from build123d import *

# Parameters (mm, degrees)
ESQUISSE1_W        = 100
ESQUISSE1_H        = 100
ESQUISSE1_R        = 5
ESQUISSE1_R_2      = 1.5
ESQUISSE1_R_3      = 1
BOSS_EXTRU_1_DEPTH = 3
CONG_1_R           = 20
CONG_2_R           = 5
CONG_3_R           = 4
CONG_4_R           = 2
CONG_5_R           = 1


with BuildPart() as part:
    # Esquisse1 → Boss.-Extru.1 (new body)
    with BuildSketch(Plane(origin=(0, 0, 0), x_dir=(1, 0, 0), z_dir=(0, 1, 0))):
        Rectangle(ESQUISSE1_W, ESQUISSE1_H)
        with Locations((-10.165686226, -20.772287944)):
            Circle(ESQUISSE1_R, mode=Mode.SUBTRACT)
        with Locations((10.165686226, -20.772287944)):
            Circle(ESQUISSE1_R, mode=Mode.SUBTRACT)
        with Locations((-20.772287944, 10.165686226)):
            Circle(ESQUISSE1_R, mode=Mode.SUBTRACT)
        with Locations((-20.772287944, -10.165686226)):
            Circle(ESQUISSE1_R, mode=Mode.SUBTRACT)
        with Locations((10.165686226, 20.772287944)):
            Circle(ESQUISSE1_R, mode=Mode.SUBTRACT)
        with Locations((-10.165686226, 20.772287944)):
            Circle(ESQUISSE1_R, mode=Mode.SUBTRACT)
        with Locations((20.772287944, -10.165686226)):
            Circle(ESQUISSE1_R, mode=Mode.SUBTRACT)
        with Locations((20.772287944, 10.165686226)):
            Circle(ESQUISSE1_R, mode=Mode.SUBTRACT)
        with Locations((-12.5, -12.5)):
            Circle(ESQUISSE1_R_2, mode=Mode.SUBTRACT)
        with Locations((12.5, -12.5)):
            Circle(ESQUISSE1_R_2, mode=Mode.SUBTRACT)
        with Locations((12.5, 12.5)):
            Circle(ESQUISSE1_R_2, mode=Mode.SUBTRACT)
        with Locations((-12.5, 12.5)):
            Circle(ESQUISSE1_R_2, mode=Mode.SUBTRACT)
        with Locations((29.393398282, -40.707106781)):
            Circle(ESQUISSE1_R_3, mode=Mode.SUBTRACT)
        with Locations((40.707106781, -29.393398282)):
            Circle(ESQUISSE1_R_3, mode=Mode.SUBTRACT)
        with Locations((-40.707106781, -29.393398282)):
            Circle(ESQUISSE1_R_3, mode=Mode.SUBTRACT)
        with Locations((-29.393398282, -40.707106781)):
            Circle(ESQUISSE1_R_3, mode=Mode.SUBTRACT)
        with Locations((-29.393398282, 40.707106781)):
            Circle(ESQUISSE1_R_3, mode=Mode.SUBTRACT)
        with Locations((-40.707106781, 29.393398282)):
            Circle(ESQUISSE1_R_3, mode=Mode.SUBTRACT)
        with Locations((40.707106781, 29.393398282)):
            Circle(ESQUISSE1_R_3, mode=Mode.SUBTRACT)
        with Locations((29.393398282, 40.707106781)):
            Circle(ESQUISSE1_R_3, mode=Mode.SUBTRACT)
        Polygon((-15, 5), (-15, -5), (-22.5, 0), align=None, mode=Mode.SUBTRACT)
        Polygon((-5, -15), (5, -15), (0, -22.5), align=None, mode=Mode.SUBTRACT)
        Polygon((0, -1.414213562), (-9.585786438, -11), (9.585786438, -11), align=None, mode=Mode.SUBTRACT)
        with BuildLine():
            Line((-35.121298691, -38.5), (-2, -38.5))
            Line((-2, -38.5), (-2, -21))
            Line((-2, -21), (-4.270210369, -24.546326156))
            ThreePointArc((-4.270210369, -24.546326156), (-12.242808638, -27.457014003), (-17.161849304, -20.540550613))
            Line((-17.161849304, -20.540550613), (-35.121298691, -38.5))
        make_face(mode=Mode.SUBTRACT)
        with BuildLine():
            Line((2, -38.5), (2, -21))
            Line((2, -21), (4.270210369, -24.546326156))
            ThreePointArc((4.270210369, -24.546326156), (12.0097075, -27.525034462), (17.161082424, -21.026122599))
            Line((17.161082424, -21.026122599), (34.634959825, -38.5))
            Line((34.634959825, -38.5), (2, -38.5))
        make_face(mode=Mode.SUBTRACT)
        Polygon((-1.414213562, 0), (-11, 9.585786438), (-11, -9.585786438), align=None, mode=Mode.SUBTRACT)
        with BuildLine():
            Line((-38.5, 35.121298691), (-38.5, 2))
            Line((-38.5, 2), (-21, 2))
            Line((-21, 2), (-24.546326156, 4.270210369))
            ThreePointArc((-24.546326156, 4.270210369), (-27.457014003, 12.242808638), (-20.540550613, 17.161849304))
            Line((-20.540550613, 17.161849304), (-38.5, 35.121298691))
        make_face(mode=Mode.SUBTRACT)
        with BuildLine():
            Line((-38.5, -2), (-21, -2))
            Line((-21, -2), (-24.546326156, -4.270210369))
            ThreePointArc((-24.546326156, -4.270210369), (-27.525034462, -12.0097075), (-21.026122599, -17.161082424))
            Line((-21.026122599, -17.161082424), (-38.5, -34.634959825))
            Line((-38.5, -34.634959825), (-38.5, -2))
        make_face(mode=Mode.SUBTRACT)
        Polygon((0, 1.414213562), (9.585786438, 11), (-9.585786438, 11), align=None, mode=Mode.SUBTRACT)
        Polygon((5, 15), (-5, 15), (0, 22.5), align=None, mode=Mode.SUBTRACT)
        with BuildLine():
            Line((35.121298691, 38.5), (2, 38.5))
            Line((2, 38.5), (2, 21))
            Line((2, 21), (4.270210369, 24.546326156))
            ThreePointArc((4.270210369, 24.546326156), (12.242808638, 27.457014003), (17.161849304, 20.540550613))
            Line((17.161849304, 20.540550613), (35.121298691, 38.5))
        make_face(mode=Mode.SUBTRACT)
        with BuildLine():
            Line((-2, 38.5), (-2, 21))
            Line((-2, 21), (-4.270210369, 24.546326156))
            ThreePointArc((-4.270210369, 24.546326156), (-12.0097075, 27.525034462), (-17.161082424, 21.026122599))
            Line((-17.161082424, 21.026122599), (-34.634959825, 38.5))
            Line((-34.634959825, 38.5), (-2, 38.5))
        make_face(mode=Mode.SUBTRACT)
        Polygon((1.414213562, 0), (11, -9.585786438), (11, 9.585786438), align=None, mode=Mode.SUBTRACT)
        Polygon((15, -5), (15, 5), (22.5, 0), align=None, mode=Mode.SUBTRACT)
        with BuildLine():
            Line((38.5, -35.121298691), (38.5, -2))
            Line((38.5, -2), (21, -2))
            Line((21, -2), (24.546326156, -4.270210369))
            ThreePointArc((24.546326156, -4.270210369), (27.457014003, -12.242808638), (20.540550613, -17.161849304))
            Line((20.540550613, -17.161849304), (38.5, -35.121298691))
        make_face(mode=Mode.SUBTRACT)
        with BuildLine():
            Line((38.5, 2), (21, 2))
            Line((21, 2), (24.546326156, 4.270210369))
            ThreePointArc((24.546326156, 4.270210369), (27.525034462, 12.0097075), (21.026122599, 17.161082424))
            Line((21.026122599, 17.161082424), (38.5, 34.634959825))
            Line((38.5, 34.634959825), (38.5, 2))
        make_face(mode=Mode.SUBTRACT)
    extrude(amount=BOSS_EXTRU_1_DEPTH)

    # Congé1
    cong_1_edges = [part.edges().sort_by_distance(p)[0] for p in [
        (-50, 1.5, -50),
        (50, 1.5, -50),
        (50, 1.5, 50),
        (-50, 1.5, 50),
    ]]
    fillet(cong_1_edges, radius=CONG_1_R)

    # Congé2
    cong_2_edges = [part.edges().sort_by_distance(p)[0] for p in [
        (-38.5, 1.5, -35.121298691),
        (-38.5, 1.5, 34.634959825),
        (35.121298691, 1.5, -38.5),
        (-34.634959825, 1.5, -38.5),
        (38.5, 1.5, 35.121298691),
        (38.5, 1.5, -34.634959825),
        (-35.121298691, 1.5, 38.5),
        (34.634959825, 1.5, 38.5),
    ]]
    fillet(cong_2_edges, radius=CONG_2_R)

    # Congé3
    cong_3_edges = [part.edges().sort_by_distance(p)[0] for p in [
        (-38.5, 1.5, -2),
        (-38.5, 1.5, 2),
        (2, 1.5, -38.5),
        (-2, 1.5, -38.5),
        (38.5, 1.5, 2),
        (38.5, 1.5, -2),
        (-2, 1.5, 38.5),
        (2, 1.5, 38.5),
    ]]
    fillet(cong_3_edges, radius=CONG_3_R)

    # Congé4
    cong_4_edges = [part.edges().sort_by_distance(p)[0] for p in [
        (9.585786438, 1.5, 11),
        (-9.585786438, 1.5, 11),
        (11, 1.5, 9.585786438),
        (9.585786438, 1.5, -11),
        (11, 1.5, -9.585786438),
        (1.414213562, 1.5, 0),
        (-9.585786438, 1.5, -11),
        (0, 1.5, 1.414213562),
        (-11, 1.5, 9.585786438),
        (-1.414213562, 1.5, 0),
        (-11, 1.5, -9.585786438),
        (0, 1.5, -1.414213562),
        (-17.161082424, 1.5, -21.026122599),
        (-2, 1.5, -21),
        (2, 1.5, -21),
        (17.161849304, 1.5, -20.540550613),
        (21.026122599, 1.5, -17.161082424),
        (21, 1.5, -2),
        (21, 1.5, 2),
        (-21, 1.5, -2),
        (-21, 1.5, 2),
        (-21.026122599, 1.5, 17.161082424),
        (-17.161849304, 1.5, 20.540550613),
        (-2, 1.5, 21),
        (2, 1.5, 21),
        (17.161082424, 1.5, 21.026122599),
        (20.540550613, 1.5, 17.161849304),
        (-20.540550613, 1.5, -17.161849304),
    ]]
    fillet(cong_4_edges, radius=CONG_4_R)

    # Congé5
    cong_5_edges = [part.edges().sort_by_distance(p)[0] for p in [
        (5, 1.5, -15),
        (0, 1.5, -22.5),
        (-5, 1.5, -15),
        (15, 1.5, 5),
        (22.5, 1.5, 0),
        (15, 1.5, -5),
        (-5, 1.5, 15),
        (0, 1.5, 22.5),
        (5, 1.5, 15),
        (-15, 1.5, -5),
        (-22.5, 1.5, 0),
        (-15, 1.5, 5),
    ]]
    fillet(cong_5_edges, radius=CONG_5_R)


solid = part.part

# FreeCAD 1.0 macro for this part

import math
import FreeCAD as App
import Part
import Sketcher
Q = App.Units.Quantity


def edges_at(feature, points):
    """Names of the edges that pass closest to the given points."""
    edges = feature.Shape.Edges
    near = lambda p: min(range(len(edges)), key=lambda i: edges[i].distToShape(Part.Vertex(*p))[0])
    return sorted({f"Edge{near(p) + 1}" for p in points})

doc = App.newDocument("Part")
body = doc.addObject("PartDesign::Body", "Body")

# Sketch on XZ plane
sketch1 = body.newObject("Sketcher::SketchObject", "Sketch")
sketch1.AttachmentSupport = (doc.getObject("XZ_Plane"), [""])
sketch1.MapMode = "FlatFace"
sketch1.addGeometry([
    Part.LineSegment(App.Vector(-50, -50, 0), App.Vector(-50, 50, 0)),  # 0
    Part.LineSegment(App.Vector(-50, 50, 0), App.Vector(50, 50, 0)),  # 1
    Part.LineSegment(App.Vector(50, 50, 0), App.Vector(50, -50, 0)),  # 2
    Part.LineSegment(App.Vector(50, -50, 0), App.Vector(-50, -50, 0)),  # 3
    Part.Circle(App.Vector(-29.4, 40.7, 0), App.Vector(0, 0, 1), 1),  # 4
    Part.Circle(App.Vector(-40.7, 29.4, 0), App.Vector(0, 0, 1), 1),  # 5
    Part.LineSegment(App.Vector(-2, 38.5, 0), App.Vector(-35.1, 38.5, 0)),  # 6
    Part.LineSegment(App.Vector(-35.1, 38.5, 0), App.Vector(-17.2, 20.5, 0)),  # 7
    Part.ArcOfCircle(Part.Circle(App.Vector(-10.2, 20.8, 0), App.Vector(0, 0, 1), 7), math.radians(33), math.radians(182)),  # 8
    Part.LineSegment(App.Vector(-4.3, 24.5, 0), App.Vector(-2, 21, 0)),  # 9
    Part.LineSegment(App.Vector(-2, 21, 0), App.Vector(-2, 38.5, 0)),  # 10
    Part.LineSegment(App.Vector(-38.5, 34.6, 0), App.Vector(-38.5, 2, 0)),  # 11
    Part.LineSegment(App.Vector(-38.5, 2, 0), App.Vector(-21, 2, 0)),  # 12
    Part.LineSegment(App.Vector(-21, 2, 0), App.Vector(-24.5, 4.3, 0)),  # 13
    Part.ArcOfCircle(Part.Circle(App.Vector(-20.8, 10.2, 0), App.Vector(0, 0, 1), 7), math.radians(92), math.radians(237)),  # 14
    Part.LineSegment(App.Vector(-21, 17.2, 0), App.Vector(-38.5, 34.6, 0)),  # 15
    Part.Circle(App.Vector(-12.5, 12.5, 0), App.Vector(0, 0, 1), 1.5),  # 16
    Part.Circle(App.Vector(-10.2, 20.8, 0), App.Vector(0, 0, 1), 5),  # 17
    Part.LineSegment(App.Vector(0, 22.5, 0), App.Vector(-5, 15, 0)),  # 18
    Part.LineSegment(App.Vector(-5, 15, 0), App.Vector(5, 15, 0)),  # 19
    Part.LineSegment(App.Vector(5, 15, 0), App.Vector(0, 22.5, 0)),  # 20
    Part.Circle(App.Vector(-20.8, 10.2, 0), App.Vector(0, 0, 1), 5),  # 21
    Part.LineSegment(App.Vector(-22.5, 0, 0), App.Vector(-15, -5, 0)),  # 22
    Part.LineSegment(App.Vector(-15, -5, 0), App.Vector(-15, 5, 0)),  # 23
    Part.LineSegment(App.Vector(-15, 5, 0), App.Vector(-22.5, 0, 0)),  # 24
    Part.LineSegment(App.Vector(-9.6, 11, 0), App.Vector(0, 1.4, 0)),  # 25
    Part.LineSegment(App.Vector(0, 1.4, 0), App.Vector(9.6, 11, 0)),  # 26
    Part.LineSegment(App.Vector(9.6, 11, 0), App.Vector(-9.6, 11, 0)),  # 27
    Part.LineSegment(App.Vector(-11, -9.6, 0), App.Vector(-1.4, 0, 0)),  # 28
    Part.LineSegment(App.Vector(-1.4, 0, 0), App.Vector(-11, 9.6, 0)),  # 29
    Part.LineSegment(App.Vector(-11, 9.6, 0), App.Vector(-11, -9.6, 0)),  # 30
    Part.LineSegment(App.Vector(34.6, 38.5, 0), App.Vector(2, 38.5, 0)),  # 31
    Part.LineSegment(App.Vector(2, 38.5, 0), App.Vector(2, 21, 0)),  # 32
    Part.LineSegment(App.Vector(2, 21, 0), App.Vector(4.3, 24.5, 0)),  # 33
    Part.ArcOfCircle(Part.Circle(App.Vector(10.2, 20.8, 0), App.Vector(0, 0, 1), 7), math.radians(2), math.radians(147)),  # 34
    Part.LineSegment(App.Vector(17.2, 21, 0), App.Vector(34.6, 38.5, 0)),  # 35
    Part.Circle(App.Vector(29.4, 40.7, 0), App.Vector(0, 0, 1), 1),  # 36
    Part.Circle(App.Vector(40.7, 29.4, 0), App.Vector(0, 0, 1), 1),  # 37
    Part.Circle(App.Vector(10.2, 20.8, 0), App.Vector(0, 0, 1), 5),  # 38
    Part.Circle(App.Vector(12.5, 12.5, 0), App.Vector(0, 0, 1), 1.5),  # 39
    Part.LineSegment(App.Vector(11, 9.6, 0), App.Vector(1.4, 0, 0)),  # 40
    Part.LineSegment(App.Vector(1.4, 0, 0), App.Vector(11, -9.6, 0)),  # 41
    Part.LineSegment(App.Vector(11, -9.6, 0), App.Vector(11, 9.6, 0)),  # 42
    Part.Circle(App.Vector(20.8, 10.2, 0), App.Vector(0, 0, 1), 5),  # 43
    Part.LineSegment(App.Vector(22.5, 0, 0), App.Vector(15, 5, 0)),  # 44
    Part.LineSegment(App.Vector(15, 5, 0), App.Vector(15, -5, 0)),  # 45
    Part.LineSegment(App.Vector(15, -5, 0), App.Vector(22.5, 0, 0)),  # 46
    Part.LineSegment(App.Vector(38.5, 2, 0), App.Vector(38.5, 35.1, 0)),  # 47
    Part.LineSegment(App.Vector(38.5, 35.1, 0), App.Vector(20.5, 17.2, 0)),  # 48
    Part.ArcOfCircle(Part.Circle(App.Vector(20.8, 10.2, 0), App.Vector(0, 0, 1), 7), math.radians(-57), math.radians(92)),  # 49
    Part.LineSegment(App.Vector(24.5, 4.3, 0), App.Vector(21, 2, 0)),  # 50
    Part.LineSegment(App.Vector(21, 2, 0), App.Vector(38.5, 2, 0)),  # 51
    Part.LineSegment(App.Vector(-38.5, -2, 0), App.Vector(-38.5, -35.1, 0)),  # 52
    Part.LineSegment(App.Vector(-38.5, -35.1, 0), App.Vector(-20.5, -17.2, 0)),  # 53
    Part.ArcOfCircle(Part.Circle(App.Vector(-20.8, -10.2, 0), App.Vector(0, 0, 1), 7), math.radians(123), math.radians(272)),  # 54
    Part.LineSegment(App.Vector(-24.5, -4.3, 0), App.Vector(-21, -2, 0)),  # 55
    Part.LineSegment(App.Vector(-21, -2, 0), App.Vector(-38.5, -2, 0)),  # 56
    Part.Circle(App.Vector(-20.8, -10.2, 0), App.Vector(0, 0, 1), 5),  # 57
    Part.LineSegment(App.Vector(9.6, -11, 0), App.Vector(0, -1.4, 0)),  # 58
    Part.LineSegment(App.Vector(0, -1.4, 0), App.Vector(-9.6, -11, 0)),  # 59
    Part.LineSegment(App.Vector(-9.6, -11, 0), App.Vector(9.6, -11, 0)),  # 60
    Part.Circle(App.Vector(-12.5, -12.5, 0), App.Vector(0, 0, 1), 1.5),  # 61
    Part.Circle(App.Vector(-10.2, -20.8, 0), App.Vector(0, 0, 1), 5),  # 62
    Part.LineSegment(App.Vector(0, -22.5, 0), App.Vector(5, -15, 0)),  # 63
    Part.LineSegment(App.Vector(5, -15, 0), App.Vector(-5, -15, 0)),  # 64
    Part.LineSegment(App.Vector(-5, -15, 0), App.Vector(0, -22.5, 0)),  # 65
    Part.Circle(App.Vector(-40.7, -29.4, 0), App.Vector(0, 0, 1), 1),  # 66
    Part.Circle(App.Vector(-29.4, -40.7, 0), App.Vector(0, 0, 1), 1),  # 67
    Part.LineSegment(App.Vector(-34.6, -38.5, 0), App.Vector(-2, -38.5, 0)),  # 68
    Part.LineSegment(App.Vector(-2, -38.5, 0), App.Vector(-2, -21, 0)),  # 69
    Part.LineSegment(App.Vector(-2, -21, 0), App.Vector(-4.3, -24.5, 0)),  # 70
    Part.ArcOfCircle(Part.Circle(App.Vector(-10.2, -20.8, 0), App.Vector(0, 0, 1), 7), math.radians(-178), math.radians(-33)),  # 71
    Part.LineSegment(App.Vector(-17.2, -21, 0), App.Vector(-34.6, -38.5, 0)),  # 72
    Part.Circle(App.Vector(20.8, -10.2, 0), App.Vector(0, 0, 1), 5),  # 73
    Part.Circle(App.Vector(10.2, -20.8, 0), App.Vector(0, 0, 1), 5),  # 74
    Part.Circle(App.Vector(12.5, -12.5, 0), App.Vector(0, 0, 1), 1.5),  # 75
    Part.LineSegment(App.Vector(38.5, -34.6, 0), App.Vector(38.5, -2, 0)),  # 76
    Part.LineSegment(App.Vector(38.5, -2, 0), App.Vector(21, -2, 0)),  # 77
    Part.LineSegment(App.Vector(21, -2, 0), App.Vector(24.5, -4.3, 0)),  # 78
    Part.ArcOfCircle(Part.Circle(App.Vector(20.8, -10.2, 0), App.Vector(0, 0, 1), 7), math.radians(-88), math.radians(57)),  # 79
    Part.LineSegment(App.Vector(21, -17.2, 0), App.Vector(38.5, -34.6, 0)),  # 80
    Part.LineSegment(App.Vector(2, -38.5, 0), App.Vector(35.1, -38.5, 0)),  # 81
    Part.LineSegment(App.Vector(35.1, -38.5, 0), App.Vector(17.2, -20.5, 0)),  # 82
    Part.ArcOfCircle(Part.Circle(App.Vector(10.2, -20.8, 0), App.Vector(0, 0, 1), 7), math.radians(-147), math.radians(2)),  # 83
    Part.LineSegment(App.Vector(4.3, -24.5, 0), App.Vector(2, -21, 0)),  # 84
    Part.LineSegment(App.Vector(2, -21, 0), App.Vector(2, -38.5, 0)),  # 85
    Part.Circle(App.Vector(40.7, -29.4, 0), App.Vector(0, 0, 1), 1),  # 86
    Part.Circle(App.Vector(29.4, -40.7, 0), App.Vector(0, 0, 1), 1),  # 87
], False)
sketch1.addConstraint([
    Sketcher.Constraint("Coincident", 0, 2, 1, 1),
    Sketcher.Constraint("Coincident", 1, 2, 2, 1),
    Sketcher.Constraint("Coincident", 2, 2, 3, 1),
    Sketcher.Constraint("Coincident", 3, 2, 0, 1),
    Sketcher.Constraint("Coincident", 6, 2, 7, 1),
    Sketcher.Constraint("Coincident", 7, 2, 8, 2),
    Sketcher.Constraint("Tangent", 8, 1, 9, 1),
    Sketcher.Constraint("Coincident", 9, 2, 10, 1),
    Sketcher.Constraint("Coincident", 10, 2, 6, 1),
    Sketcher.Constraint("Coincident", 11, 2, 12, 1),
    Sketcher.Constraint("Coincident", 12, 2, 13, 1),
    Sketcher.Constraint("Tangent", 13, 2, 14, 2),
    Sketcher.Constraint("Coincident", 14, 1, 15, 1),
    Sketcher.Constraint("Coincident", 15, 2, 11, 1),
    Sketcher.Constraint("Coincident", 18, 2, 19, 1),
    Sketcher.Constraint("Coincident", 19, 2, 20, 1),
    Sketcher.Constraint("Coincident", 20, 2, 18, 1),
    Sketcher.Constraint("Coincident", 22, 2, 23, 1),
    Sketcher.Constraint("Coincident", 23, 2, 24, 1),
    Sketcher.Constraint("Coincident", 24, 2, 22, 1),
    Sketcher.Constraint("Coincident", 25, 2, 26, 1),
    Sketcher.Constraint("Coincident", 26, 2, 27, 1),
    Sketcher.Constraint("Coincident", 27, 2, 25, 1),
    Sketcher.Constraint("Coincident", 28, 2, 29, 1),
    Sketcher.Constraint("Coincident", 29, 2, 30, 1),
    Sketcher.Constraint("Coincident", 30, 2, 28, 1),
    Sketcher.Constraint("Coincident", 31, 2, 32, 1),
    Sketcher.Constraint("Coincident", 32, 2, 33, 1),
    Sketcher.Constraint("Tangent", 33, 2, 34, 2),
    Sketcher.Constraint("Coincident", 34, 1, 35, 1),
    Sketcher.Constraint("Coincident", 35, 2, 31, 1),
    Sketcher.Constraint("Coincident", 40, 2, 41, 1),
    Sketcher.Constraint("Coincident", 41, 2, 42, 1),
    Sketcher.Constraint("Coincident", 42, 2, 40, 1),
    Sketcher.Constraint("Coincident", 44, 2, 45, 1),
    Sketcher.Constraint("Coincident", 45, 2, 46, 1),
    Sketcher.Constraint("Coincident", 46, 2, 44, 1),
    Sketcher.Constraint("Coincident", 47, 2, 48, 1),
    Sketcher.Constraint("Coincident", 48, 2, 49, 2),
    Sketcher.Constraint("Tangent", 49, 1, 50, 1),
    Sketcher.Constraint("Coincident", 50, 2, 51, 1),
    Sketcher.Constraint("Coincident", 51, 2, 47, 1),
    Sketcher.Constraint("Coincident", 52, 2, 53, 1),
    Sketcher.Constraint("Coincident", 53, 2, 54, 2),
    Sketcher.Constraint("Tangent", 54, 1, 55, 1),
    Sketcher.Constraint("Coincident", 55, 2, 56, 1),
    Sketcher.Constraint("Coincident", 56, 2, 52, 1),
    Sketcher.Constraint("Coincident", 58, 2, 59, 1),
    Sketcher.Constraint("Coincident", 59, 2, 60, 1),
    Sketcher.Constraint("Coincident", 60, 2, 58, 1),
    Sketcher.Constraint("Coincident", 63, 2, 64, 1),
    Sketcher.Constraint("Coincident", 64, 2, 65, 1),
    Sketcher.Constraint("Coincident", 65, 2, 63, 1),
    Sketcher.Constraint("Coincident", 68, 2, 69, 1),
    Sketcher.Constraint("Coincident", 69, 2, 70, 1),
    Sketcher.Constraint("Tangent", 70, 2, 71, 2),
    Sketcher.Constraint("Coincident", 71, 1, 72, 1),
    Sketcher.Constraint("Coincident", 72, 2, 68, 1),
    Sketcher.Constraint("Coincident", 76, 2, 77, 1),
    Sketcher.Constraint("Coincident", 77, 2, 78, 1),
    Sketcher.Constraint("Tangent", 78, 2, 79, 2),
    Sketcher.Constraint("Coincident", 79, 1, 80, 1),
    Sketcher.Constraint("Coincident", 80, 2, 76, 1),
    Sketcher.Constraint("Coincident", 81, 2, 82, 1),
    Sketcher.Constraint("Coincident", 82, 2, 83, 2),
    Sketcher.Constraint("Tangent", 83, 1, 84, 1),
    Sketcher.Constraint("Coincident", 84, 2, 85, 1),
    Sketcher.Constraint("Coincident", 85, 2, 81, 1),
    Sketcher.Constraint("Vertical", 0),
    Sketcher.Constraint("Horizontal", 1),
    Sketcher.Constraint("Vertical", 2),
    Sketcher.Constraint("Horizontal", 3),
    Sketcher.Constraint("Horizontal", 6),
    Sketcher.Constraint("Vertical", 10),
    Sketcher.Constraint("Vertical", 11),
    Sketcher.Constraint("Horizontal", 12),
    Sketcher.Constraint("Horizontal", 19),
    Sketcher.Constraint("Vertical", 23),
    Sketcher.Constraint("Horizontal", 27),
    Sketcher.Constraint("Vertical", 30),
    Sketcher.Constraint("Horizontal", 31),
    Sketcher.Constraint("Vertical", 32),
    Sketcher.Constraint("Vertical", 42),
    Sketcher.Constraint("Vertical", 45),
    Sketcher.Constraint("Vertical", 47),
    Sketcher.Constraint("Horizontal", 51),
    Sketcher.Constraint("Vertical", 52),
    Sketcher.Constraint("Horizontal", 56),
    Sketcher.Constraint("Horizontal", 60),
    Sketcher.Constraint("Horizontal", 64),
    Sketcher.Constraint("Horizontal", 68),
    Sketcher.Constraint("Vertical", 69),
    Sketcher.Constraint("Vertical", 76),
    Sketcher.Constraint("Horizontal", 77),
    Sketcher.Constraint("Horizontal", 81),
    Sketcher.Constraint("Vertical", 85),
    Sketcher.Constraint("Coincident", 17, 3, 8, 3),
    Sketcher.Constraint("Coincident", 21, 3, 14, 3),
    Sketcher.Constraint("Coincident", 38, 3, 34, 3),
    Sketcher.Constraint("Coincident", 49, 3, 43, 3),
    Sketcher.Constraint("Coincident", 57, 3, 54, 3),
    Sketcher.Constraint("Coincident", 71, 3, 62, 3),
    Sketcher.Constraint("Coincident", 79, 3, 73, 3),
    Sketcher.Constraint("Coincident", 83, 3, 74, 3),
    Sketcher.Constraint("Equal", 4, 5),
    Sketcher.Constraint("Equal", 8, 14),
    Sketcher.Constraint("Equal", 17, 21),
    Sketcher.Constraint("Equal", 14, 34),
    Sketcher.Constraint("Equal", 5, 36),
    Sketcher.Constraint("Equal", 36, 37),
    Sketcher.Constraint("Equal", 21, 38),
    Sketcher.Constraint("Equal", 16, 39),
    Sketcher.Constraint("Equal", 38, 43),
    Sketcher.Constraint("Equal", 34, 49),
    Sketcher.Constraint("Equal", 49, 54),
    Sketcher.Constraint("Equal", 43, 57),
    Sketcher.Constraint("Equal", 39, 61),
    Sketcher.Constraint("Equal", 57, 62),
    Sketcher.Constraint("Equal", 37, 66),
    Sketcher.Constraint("Equal", 66, 67),
    Sketcher.Constraint("Equal", 54, 71),
    Sketcher.Constraint("Equal", 62, 73),
    Sketcher.Constraint("Equal", 73, 74),
    Sketcher.Constraint("Equal", 61, 75),
    Sketcher.Constraint("Equal", 71, 79),
    Sketcher.Constraint("Equal", 79, 83),
    Sketcher.Constraint("Equal", 67, 86),
    Sketcher.Constraint("Equal", 86, 87),
    Sketcher.Constraint("Symmetric", 43, 3, 54, 3, -1, 1),
    Sketcher.Constraint("Symmetric", 39, 3, 61, 3, -1, 1),
    Sketcher.Constraint("Symmetric", 34, 3, 62, 3, -1, 1),
    Sketcher.Constraint("Symmetric", 37, 3, 66, 3, -1, 1),
    Sketcher.Constraint("Symmetric", 36, 3, 67, 3, -1, 1),
    Sketcher.Constraint("Symmetric", 14, 3, 73, 3, -1, 1),
    Sketcher.Constraint("Symmetric", 8, 3, 74, 3, -1, 1),
    Sketcher.Constraint("Symmetric", 16, 3, 75, 3, -1, 1),
    Sketcher.Constraint("Symmetric", 5, 3, 86, 3, -1, 1),
    Sketcher.Constraint("Symmetric", 4, 3, 87, 3, -1, 1),
    Sketcher.Constraint("Symmetric", 0, 2, 2, 2, -1, 1),
    Sketcher.Constraint("Symmetric", 28, 2, 40, 2, -1, 1),
    Sketcher.Constraint("Symmetric", 29, 2, 41, 2, -1, 1),
    Sketcher.Constraint("Symmetric", 22, 2, 44, 2, -1, 1),
    Sketcher.Constraint("Symmetric", 24, 2, 46, 2, -1, 1),
    Sketcher.Constraint("Symmetric", 47, 2, 52, 2, -1, 1),
    Sketcher.Constraint("Symmetric", 50, 2, 55, 2, -1, 1),
    Sketcher.Constraint("Symmetric", 25, 2, 58, 2, -1, 1),
    Sketcher.Constraint("Symmetric", 26, 2, 59, 2, -1, 1),
    Sketcher.Constraint("Symmetric", 18, 2, 63, 2, -1, 1),
    Sketcher.Constraint("Symmetric", 20, 2, 65, 2, -1, 1),
    Sketcher.Constraint("Symmetric", 31, 2, 68, 2, -1, 1),
    Sketcher.Constraint("Symmetric", 11, 2, 76, 2, -1, 1),
    Sketcher.Constraint("Symmetric", 6, 2, 81, 2, -1, 1),
    Sketcher.Constraint("Symmetric", 9, 2, 84, 2, -1, 1),
    Sketcher.Constraint("Symmetric", 8, 3, 34, 3, -2),
    Sketcher.Constraint("Symmetric", 4, 3, 36, 3, -2),
    Sketcher.Constraint("Symmetric", 5, 3, 37, 3, -2),
    Sketcher.Constraint("Symmetric", 16, 3, 39, 3, -2),
    Sketcher.Constraint("Symmetric", 14, 3, 43, 3, -2),
    Sketcher.Constraint("Symmetric", 10, 2, 31, 2, -2),
    Sketcher.Constraint("Symmetric", 12, 2, 50, 2, -2),
    Sketcher.Constraint("PointOnObject", 20, 2, -2),
    Sketcher.Constraint("PointOnObject", 24, 2, -1),
    Sketcher.Constraint("PointOnObject", 25, 2, -2),
    Sketcher.Constraint("PointOnObject", 28, 2, -1),
    Sketcher.Constraint("Parallel", 7, 15),
    Sketcher.Constraint("Perpendicular", 18, 22),
    Sketcher.Constraint("Perpendicular", 20, 24),
    Sketcher.Constraint("Parallel", 15, 25),
    Sketcher.Constraint("Perpendicular", 25, 26),
    Sketcher.Constraint("Parallel", 26, 28),
    Sketcher.Constraint("Perpendicular", 28, 29),
    Sketcher.Constraint("Perpendicular", 13, 33),
    Sketcher.Constraint("Perpendicular", 29, 35),
    Sketcher.Constraint("Parallel", 35, 40),
    Sketcher.Constraint("Parallel", 24, 46),
    Sketcher.Constraint("Perpendicular", 41, 48),
    Sketcher.Constraint("Perpendicular", 9, 50),
    Sketcher.Constraint("Parallel", 48, 53),
    Sketcher.Constraint("Perpendicular", 53, 58),
    Sketcher.Constraint("Perpendicular", 46, 65),
    Sketcher.Constraint("Parallel", 33, 70),
    Sketcher.Constraint("Parallel", 59, 72),
    Sketcher.Constraint("Perpendicular", 70, 78),
    Sketcher.Constraint("Perpendicular", 72, 80),
    Sketcher.Constraint("Parallel", 80, 82),
    Sketcher.Constraint("Horizontal", 30, 2, 41, 2),
    Sketcher.Constraint("Horizontal", 23, 2, 44, 2),
    Sketcher.Constraint("Vertical", 15, 2, 52, 2),
    Sketcher.Constraint("Equal", 31, 68),
    Sketcher.Constraint("Equal", 3, 0),
    Sketcher.Constraint("Equal", 77, 10),
    Sketcher.Constraint("Equal", 68, 11),
    Sketcher.Constraint("Equal", 64, 23),
    Sketcher.Constraint("Equal", 60, 30),
    Sketcher.Constraint("Equal", 81, 47),
    Sketcher.Constraint("Equal", 11, 76),
    Sketcher.Constraint("Equal", 9, 13),
    Sketcher.Constraint("Diameter", 4, Q("2 mm")),
    Sketcher.Constraint("Diameter", 16, Q("3 mm")),
    Sketcher.Constraint("Diameter", 17, Q("10 mm")),
    Sketcher.Constraint("Radius", 8, Q("7 mm")),
    Sketcher.Constraint("DistanceX", 1, 1, 1, 2, Q("100 mm")),
    Sketcher.Constraint("DistanceX", 19, 1, 19, 2, Q("10 mm")),
    Sketcher.Constraint("DistanceX", 12, 1, 12, 2, Q("17.5 mm")),
    Sketcher.Constraint("DistanceX", 9, 2, -1, 1, Q("2 mm")),
    Sketcher.Constraint("DistanceY", -1, 1, 9, 2, Q("21 mm")),
    Sketcher.Constraint("DistanceY", -1, 1, 11, 2, Q("2 mm")),
    Sketcher.Constraint("DistanceX", 12, 2, -1, 1, Q("21 mm")),
    Sketcher.Constraint("DistanceY", -1, 1, 18, 2, Q("15 mm")),
    Sketcher.Constraint("DistanceX", 22, 2, -1, 1, Q("15 mm")),
    Sketcher.Constraint("DistanceY", -1, 1, 26, 2, Q("11 mm")),
    Sketcher.Constraint("DistanceX", 29, 2, -1, 1, Q("11 mm")),
    Sketcher.Constraint("DistanceX", 16, 3, -1, 1, Q("12.5 mm")),
    Sketcher.Constraint("DistanceY", -1, 1, 16, 3, Q("12.5 mm")),
    Sketcher.Constraint("DistanceY", -1, 1, 20, 2, Q("22.5 mm")),
    Sketcher.Constraint("DistanceX", 6, 2, 6, 1, Q("33.121299 mm")),
    Sketcher.Constraint("DistanceX", 31, 2, 31, 1, Q("32.63496 mm")),
    Sketcher.Constraint("DistanceX", 4, 3, -1, 1, Q("29.393398 mm")),
    Sketcher.Constraint("DistanceY", -1, 1, 5, 3, Q("29.393398 mm")),
    Sketcher.Constraint("Distance", 25, Q("13.556349 mm")),
    Sketcher.Constraint("DistanceX", 7, 2, -1, 1, Q("17.161849 mm")),
    Sketcher.Constraint("DistanceX", 8, 1, -1, 1, Q("4.27021 mm")),
    Sketcher.Constraint("DistanceY", -1, 1, 4, 3, Q("40.707107 mm")),
    Sketcher.Constraint("DistanceX", 5, 3, -1, 1, Q("40.707107 mm")),
])
pad1 = body.newObject("PartDesign::Pad", "Pad")
pad1.Profile = sketch1
pad1.Length = 3
pad1.Reversed = True
doc.recompute()

fillet = body.newObject("PartDesign::Fillet", "Fillet")
fillet.Base = (pad1, edges_at(pad1, [
    (-50, 1.5, -50),
    (50, 1.5, -50),
    (50, 1.5, 50),
    (-50, 1.5, 50),
]))
fillet.Radius = 20
doc.recompute()

fillet2 = body.newObject("PartDesign::Fillet", "Fillet001")
fillet2.Base = (fillet, edges_at(fillet, [
    (-38.5, 1.5, -35.121),
    (-38.5, 1.5, 34.635),
    (35.121, 1.5, -38.5),
    (-34.635, 1.5, -38.5),
    (38.5, 1.5, 35.121),
    (38.5, 1.5, -34.635),
    (-35.121, 1.5, 38.5),
    (34.635, 1.5, 38.5),
]))
fillet2.Radius = 5
doc.recompute()

fillet3 = body.newObject("PartDesign::Fillet", "Fillet002")
fillet3.Base = (fillet2, edges_at(fillet2, [
    (-38.5, 1.5, -2),
    (-38.5, 1.5, 2),
    (2, 1.5, -38.5),
    (-2, 1.5, -38.5),
    (38.5, 1.5, 2),
    (38.5, 1.5, -2),
    (-2, 1.5, 38.5),
    (2, 1.5, 38.5),
]))
fillet3.Radius = 4
doc.recompute()

fillet4 = body.newObject("PartDesign::Fillet", "Fillet003")
fillet4.Base = (fillet3, edges_at(fillet3, [
    (9.586, 1.5, 11),
    (-9.586, 1.5, 11),
    (11, 1.5, 9.586),
    (9.586, 1.5, -11),
    (11, 1.5, -9.586),
    (1.414, 1.5, 0),
    (-9.586, 1.5, -11),
    (0, 1.5, 1.414),
    (-11, 1.5, 9.586),
    (-1.414, 1.5, 0),
    (-11, 1.5, -9.586),
    (0, 1.5, -1.414),
    (-17.161, 1.5, -21.026),
    (-2, 1.5, -21),
    (2, 1.5, -21),
    (17.162, 1.5, -20.541),
    (21.026, 1.5, -17.161),
    (21, 1.5, -2),
    (21, 1.5, 2),
    (-21, 1.5, -2),
    (-21, 1.5, 2),
    (-21.026, 1.5, 17.161),
    (-17.162, 1.5, 20.541),
    (-2, 1.5, 21),
    (2, 1.5, 21),
    (17.161, 1.5, 21.026),
    (20.541, 1.5, 17.162),
    (-20.541, 1.5, -17.162),
]))
fillet4.Radius = 2
doc.recompute()

fillet5 = body.newObject("PartDesign::Fillet", "Fillet004")
fillet5.Base = (fillet4, edges_at(fillet4, [
    (5, 1.5, -15),
    (0, 1.5, -22.5),
    (-5, 1.5, -15),
    (15, 1.5, 5),
    (22.5, 1.5, 0),
    (15, 1.5, -5),
    (-5, 1.5, 15),
    (0, 1.5, 22.5),
    (5, 1.5, 15),
    (-15, 1.5, -5),
    (-22.5, 1.5, 0),
    (-15, 1.5, 5),
]))
fillet5.Radius = 1

doc.recompute()
